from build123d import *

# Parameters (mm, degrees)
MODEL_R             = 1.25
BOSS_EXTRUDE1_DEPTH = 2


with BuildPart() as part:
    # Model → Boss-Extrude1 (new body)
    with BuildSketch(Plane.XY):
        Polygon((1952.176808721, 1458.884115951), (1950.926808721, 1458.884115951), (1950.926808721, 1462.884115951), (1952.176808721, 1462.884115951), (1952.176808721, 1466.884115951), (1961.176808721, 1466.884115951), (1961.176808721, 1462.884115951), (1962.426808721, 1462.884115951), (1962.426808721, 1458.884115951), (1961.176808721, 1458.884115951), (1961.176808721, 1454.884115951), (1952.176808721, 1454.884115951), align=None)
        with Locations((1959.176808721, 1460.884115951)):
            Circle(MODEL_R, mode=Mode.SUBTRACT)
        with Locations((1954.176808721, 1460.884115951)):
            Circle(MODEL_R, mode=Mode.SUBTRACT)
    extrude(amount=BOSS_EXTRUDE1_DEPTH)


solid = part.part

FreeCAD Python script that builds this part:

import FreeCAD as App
import Part
import Sketcher

V = App.Vector
Q = App.Units.Quantity

doc = App.newDocument("Part")
params = doc.addObject("Spreadsheet::Sheet", "Params")
for row, (alias, value) in enumerate([
    ("sketch1_diameter", "2.5 mm"),
    ("sketch1_width", "9 mm"),
    ("sketch1_height", "4 mm"),
    ("sketch1_width2", "1.25 mm"),
    ("pad1_length", "2 mm"),
], start=1):
    params.set(f"A{row}", alias)
    params.set(f"B{row}", "=" + value)
    params.setAlias(f"B{row}", alias)

body = doc.addObject("PartDesign::Body", "Body")

sketch1 = body.newObject("Sketcher::SketchObject", "Sketch")
sketch1.AttachmentSupport = (doc.getObject("XY_Plane"), [""])
sketch1.MapMode = "FlatFace"
sketch1.addGeometry([
    Part.LineSegment(V(1950.9, 1458.9, 0), V(1952.2, 1458.9, 0)),
    Part.LineSegment(V(1952.2, 1458.9, 0), V(1952.2, 1454.9, 0)),
    Part.LineSegment(V(1952.2, 1454.9, 0), V(1961.2, 1454.9, 0)),
    Part.LineSegment(V(1961.2, 1454.9, 0), V(1961.2, 1458.9, 0)),
    Part.LineSegment(V(1961.2, 1458.9, 0), V(1962.4, 1458.9, 0)),
    Part.LineSegment(V(1962.4, 1458.9, 0), V(1962.4, 1462.9, 0)),
    Part.LineSegment(V(1962.4, 1462.9, 0), V(1961.2, 1462.9, 0)),
    Part.LineSegment(V(1961.2, 1462.9, 0), V(1961.2, 1466.9, 0)),
    Part.LineSegment(V(1961.2, 1466.9, 0), V(1952.2, 1466.9, 0)),
    Part.LineSegment(V(1952.2, 1466.9, 0), V(1952.2, 1462.9, 0)),
    Part.LineSegment(V(1952.2, 1462.9, 0), V(1950.9, 1462.9, 0)),
    Part.LineSegment(V(1950.9, 1462.9, 0), V(1950.9, 1458.9, 0)),
    Part.Circle(V(1959.2, 1460.9, 0), V(0, 0, 1), 1.2),
    Part.Circle(V(1954.2, 1460.9, 0), V(0, 0, 1), 1.2),
], False)
sketch1.addConstraint([
    Sketcher.Constraint("Coincident", 0, 2, 1, 1),
    Sketcher.Constraint("Coincident", 1, 2, 2, 1),
    Sketcher.Constraint("Coincident", 2, 2, 3, 1),
    Sketcher.Constraint("Coincident", 3, 2, 4, 1),
    Sketcher.Constraint("Coincident", 4, 2, 5, 1),
    Sketcher.Constraint("Coincident", 5, 2, 6, 1),
    Sketcher.Constraint("Coincident", 6, 2, 7, 1),
    Sketcher.Constraint("Coincident", 7, 2, 8, 1),
    Sketcher.Constraint("Coincident", 8, 2, 9, 1),
    Sketcher.Constraint("Coincident", 9, 2, 10, 1),
    Sketcher.Constraint("Coincident", 10, 2, 11, 1),
    Sketcher.Constraint("Coincident", 11, 2, 0, 1),
    Sketcher.Constraint("Horizontal", 0),
    Sketcher.Constraint("Vertical", 1),
    Sketcher.Constraint("Horizontal", 2),
    Sketcher.Constraint("Vertical", 3),
    Sketcher.Constraint("Horizontal", 4),
    Sketcher.Constraint("Vertical", 5),
    Sketcher.Constraint("Horizontal", 6),
    Sketcher.Constraint("Vertical", 7),
    Sketcher.Constraint("Horizontal", 8),
    Sketcher.Constraint("Vertical", 9),
    Sketcher.Constraint("Horizontal", 10),
    Sketcher.Constraint("Vertical", 11),
    Sketcher.Constraint("Equal", 12, 13),
    Sketcher.Constraint("Horizontal", 12, 3, 13, 3),
    Sketcher.Constraint("Horizontal", 0, 2, 3, 2),
    Sketcher.Constraint("Horizontal", 6, 2, 9, 2),
    Sketcher.Constraint("Vertical", 3, 2, 6, 2),
    Sketcher.Constraint("Vertical", 1, 2, 8, 2),
    Sketcher.Constraint("Equal", 0, 4),
    Sketcher.Constraint("Equal", 3, 5),
    Sketcher.Constraint("Equal", 5, 7),
    Sketcher.Constraint("Diameter", 12, Q("2.5 mm")),
    Sketcher.Constraint("DistanceX", 2, 1, 2, 2, Q("9 mm")),
    Sketcher.Constraint("DistanceY", 1, 2, 1, 1, Q("4 mm")),
    Sketcher.Constraint("DistanceX", 13, 3, 12, 3, Q("5 mm")),
    Sketcher.Constraint("DistanceX", 0, 2, 13, 3, Q("2 mm")),
    Sketcher.Constraint("DistanceY", 0, 2, 13, 3, Q("2 mm")),
    Sketcher.Constraint("DistanceX", 0, 1, 0, 2, Q("1.25 mm")),
    Sketcher.Constraint("DistanceX", -1, 1, 12, 3, Q("1959.176809 mm")),
    Sketcher.Constraint("DistanceY", -1, 1, 12, 3, Q("1460.884116 mm")),
])
sketch1.setExpression("Constraints[33]", "Params.sketch1_diameter")
sketch1.setExpression("Constraints[34]", "Params.sketch1_width")
sketch1.setExpression("Constraints[35]", "Params.sketch1_height")
sketch1.setExpression("Constraints[39]", "Params.sketch1_width2")
pad1 = body.newObject("PartDesign::Pad", "Pad")
pad1.Profile = sketch1
pad1.setExpression("Length", "Params.pad1_length")

doc.recompute()
